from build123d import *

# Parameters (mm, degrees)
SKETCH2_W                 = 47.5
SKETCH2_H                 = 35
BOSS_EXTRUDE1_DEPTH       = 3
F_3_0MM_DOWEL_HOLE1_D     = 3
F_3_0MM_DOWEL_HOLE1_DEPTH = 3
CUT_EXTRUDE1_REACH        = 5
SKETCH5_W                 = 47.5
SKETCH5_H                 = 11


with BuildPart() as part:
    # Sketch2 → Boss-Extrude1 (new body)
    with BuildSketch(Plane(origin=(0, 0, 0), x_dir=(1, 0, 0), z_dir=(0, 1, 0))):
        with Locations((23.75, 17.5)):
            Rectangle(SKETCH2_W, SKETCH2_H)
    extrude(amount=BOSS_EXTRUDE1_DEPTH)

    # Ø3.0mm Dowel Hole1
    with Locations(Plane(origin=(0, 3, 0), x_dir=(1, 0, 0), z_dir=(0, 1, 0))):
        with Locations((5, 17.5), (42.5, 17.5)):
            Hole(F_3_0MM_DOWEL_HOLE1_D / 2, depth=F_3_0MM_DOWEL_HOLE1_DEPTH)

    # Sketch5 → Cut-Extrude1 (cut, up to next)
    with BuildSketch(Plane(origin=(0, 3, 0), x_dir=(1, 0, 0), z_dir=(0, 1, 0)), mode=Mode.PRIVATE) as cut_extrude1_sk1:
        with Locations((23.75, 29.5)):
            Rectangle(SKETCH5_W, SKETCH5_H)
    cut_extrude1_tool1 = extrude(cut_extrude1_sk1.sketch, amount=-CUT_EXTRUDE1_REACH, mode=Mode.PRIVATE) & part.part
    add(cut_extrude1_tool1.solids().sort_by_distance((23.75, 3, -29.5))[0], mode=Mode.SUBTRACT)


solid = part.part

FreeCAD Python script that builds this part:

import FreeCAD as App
import Part
import Sketcher
Q = App.Units.Quantity

doc = App.newDocument("Part")
params = doc.addObject("Spreadsheet::Sheet", "Params")
for row, (alias, value) in enumerate([
    ("sketch1_height", "35 mm"),
    ("sketch1_width", "47.5 mm"),
    ("pad1_length", "3 mm"),
    ("sketch2_diameter", "3 mm"),
    ("hole_diameter", "3 mm"),
    ("hole_depth", "3 mm"),
    ("sketch3_height", "11 mm"),
    ("sketch3_width", "47.5 mm"),
], start=1):
    params.set(f"A{row}", alias)
    params.set(f"B{row}", "=" + value)
    params.setAlias(f"B{row}", alias)

body = doc.addObject("PartDesign::Body", "Body")

# Sketch on XZ plane
sketch1 = body.newObject("Sketcher::SketchObject", "Sketch")
sketch1.AttachmentSupport = (doc.getObject("XZ_Plane"), [""])
sketch1.MapMode = "FlatFace"
sketch1.addGeometry([
    Part.LineSegment(App.Vector(0, -35, 0), App.Vector(0, 0, 0)),
    Part.LineSegment(App.Vector(0, 0, 0), App.Vector(48, 0, 0)),
    Part.LineSegment(App.Vector(48, 0, 0), App.Vector(48, -35, 0)),
    Part.LineSegment(App.Vector(48, -35, 0), App.Vector(0, -35, 0)),
], False)
sketch1.addConstraint([
    Sketcher.Constraint("Coincident", 0, 2, 1, 1),
    Sketcher.Constraint("Coincident", 1, 2, 2, 1),
    Sketcher.Constraint("Coincident", 2, 2, 3, 1),
    Sketcher.Constraint("Coincident", 3, 2, 0, 1),
    Sketcher.Constraint("Vertical", 0),
    Sketcher.Constraint("Horizontal", 1),
    Sketcher.Constraint("Vertical", 2),
    Sketcher.Constraint("Horizontal", 3),
    Sketcher.Constraint("Coincident", 0, 2, -1, 1),
    Sketcher.Constraint("DistanceY", 0, 1, 0, 2, Q("35 mm")),
    Sketcher.Constraint("DistanceX", 1, 1, 1, 2, Q("47.5 mm")),
])
sketch1.setExpression("Constraints[9]", "Params.sketch1_height")
sketch1.setExpression("Constraints[10]", "Params.sketch1_width")
pad1 = body.newObject("PartDesign::Pad", "Pad")
pad1.Profile = sketch1
pad1.setExpression("Length", "Params.pad1_length")
pad1.Reversed = True

# Sketch on XZ plane
sketch2 = body.newObject("Sketcher::SketchObject", "Sketch001")
sketch2.AttachmentSupport = (doc.getObject("XZ_Plane"), [""])
sketch2.MapMode = "FlatFace"
sketch2.AttachmentOffset = App.Placement(App.Vector(0, 0, -3), App.Rotation())
sketch2.addGeometry([
    Part.Circle(App.Vector(5, -17.5, 0), App.Vector(0, 0, 1), 1.5),
    Part.Circle(App.Vector(42.5, -17.5, 0), App.Vector(0, 0, 1), 1.5),
], False)
sketch2.addConstraint([
    Sketcher.Constraint("Equal", 0, 1),
    Sketcher.Constraint("Horizontal", 0, 3, 1, 3),
    Sketcher.Constraint("Diameter", 0, Q("3 mm")),
    Sketcher.Constraint("DistanceX", -1, 1, 0, 3, Q("5 mm")),
    Sketcher.Constraint("DistanceY", 0, 3, -1, 1, Q("17.5 mm")),
    Sketcher.Constraint("DistanceX", -1, 1, 1, 3, Q("42.5 mm")),
])
sketch2.setExpression("Constraints[2]", "Params.sketch2_diameter")
doc.recompute()
hole = body.newObject("PartDesign::Hole", "Hole")
hole.Profile = sketch2
hole.ThreadType = "None"
hole.setExpression("Diameter", "Params.hole_diameter")
hole.DepthType = "Dimension"
hole.setExpression("Depth", "Params.hole_depth")
hole.DrillPoint = "Flat"
hole.Reversed = True

# Sketch on XZ plane
sketch3 = body.newObject("Sketcher::SketchObject", "Sketch002")
sketch3.AttachmentSupport = (doc.getObject("XZ_Plane"), [""])
sketch3.MapMode = "FlatFace"
sketch3.AttachmentOffset = App.Placement(App.Vector(0, 0, -3), App.Rotation())
sketch3.addGeometry([
    Part.LineSegment(App.Vector(0, -35, 0), App.Vector(0, -24, 0)),
    Part.LineSegment(App.Vector(0, -24, 0), App.Vector(48, -24, 0)),
    Part.LineSegment(App.Vector(48, -24, 0), App.Vector(48, -35, 0)),
    Part.LineSegment(App.Vector(48, -35, 0), App.Vector(0, -35, 0)),
], False)
sketch3.addConstraint([
    Sketcher.Constraint("Coincident", 0, 2, 1, 1),
    Sketcher.Constraint("Coincident", 1, 2, 2, 1),
    Sketcher.Constraint("Coincident", 2, 2, 3, 1),
    Sketcher.Constraint("Coincident", 3, 2, 0, 1),
    Sketcher.Constraint("Vertical", 0),
    Sketcher.Constraint("Horizontal", 1),
    Sketcher.Constraint("Vertical", 2),
    Sketcher.Constraint("Horizontal", 3),
    Sketcher.Constraint("PointOnObject", 0, 2, -2),
    Sketcher.Constraint("DistanceY", 0, 1, 0, 2, Q("11 mm")),
    Sketcher.Constraint("DistanceX", 1, 1, 1, 2, Q("47.5 mm")),
    Sketcher.Constraint("DistanceY", 0, 2, -1, 1, Q("24 mm")),
])
sketch3.setExpression("Constraints[9]", "Params.sketch3_height")
sketch3.setExpression("Constraints[10]", "Params.sketch3_width")
pocket1 = body.newObject("PartDesign::Pocket", "Pocket")
pocket1.Profile = sketch3
pocket1.Type = "UpToFirst"
pocket1.Reversed = True

doc.recompute()
